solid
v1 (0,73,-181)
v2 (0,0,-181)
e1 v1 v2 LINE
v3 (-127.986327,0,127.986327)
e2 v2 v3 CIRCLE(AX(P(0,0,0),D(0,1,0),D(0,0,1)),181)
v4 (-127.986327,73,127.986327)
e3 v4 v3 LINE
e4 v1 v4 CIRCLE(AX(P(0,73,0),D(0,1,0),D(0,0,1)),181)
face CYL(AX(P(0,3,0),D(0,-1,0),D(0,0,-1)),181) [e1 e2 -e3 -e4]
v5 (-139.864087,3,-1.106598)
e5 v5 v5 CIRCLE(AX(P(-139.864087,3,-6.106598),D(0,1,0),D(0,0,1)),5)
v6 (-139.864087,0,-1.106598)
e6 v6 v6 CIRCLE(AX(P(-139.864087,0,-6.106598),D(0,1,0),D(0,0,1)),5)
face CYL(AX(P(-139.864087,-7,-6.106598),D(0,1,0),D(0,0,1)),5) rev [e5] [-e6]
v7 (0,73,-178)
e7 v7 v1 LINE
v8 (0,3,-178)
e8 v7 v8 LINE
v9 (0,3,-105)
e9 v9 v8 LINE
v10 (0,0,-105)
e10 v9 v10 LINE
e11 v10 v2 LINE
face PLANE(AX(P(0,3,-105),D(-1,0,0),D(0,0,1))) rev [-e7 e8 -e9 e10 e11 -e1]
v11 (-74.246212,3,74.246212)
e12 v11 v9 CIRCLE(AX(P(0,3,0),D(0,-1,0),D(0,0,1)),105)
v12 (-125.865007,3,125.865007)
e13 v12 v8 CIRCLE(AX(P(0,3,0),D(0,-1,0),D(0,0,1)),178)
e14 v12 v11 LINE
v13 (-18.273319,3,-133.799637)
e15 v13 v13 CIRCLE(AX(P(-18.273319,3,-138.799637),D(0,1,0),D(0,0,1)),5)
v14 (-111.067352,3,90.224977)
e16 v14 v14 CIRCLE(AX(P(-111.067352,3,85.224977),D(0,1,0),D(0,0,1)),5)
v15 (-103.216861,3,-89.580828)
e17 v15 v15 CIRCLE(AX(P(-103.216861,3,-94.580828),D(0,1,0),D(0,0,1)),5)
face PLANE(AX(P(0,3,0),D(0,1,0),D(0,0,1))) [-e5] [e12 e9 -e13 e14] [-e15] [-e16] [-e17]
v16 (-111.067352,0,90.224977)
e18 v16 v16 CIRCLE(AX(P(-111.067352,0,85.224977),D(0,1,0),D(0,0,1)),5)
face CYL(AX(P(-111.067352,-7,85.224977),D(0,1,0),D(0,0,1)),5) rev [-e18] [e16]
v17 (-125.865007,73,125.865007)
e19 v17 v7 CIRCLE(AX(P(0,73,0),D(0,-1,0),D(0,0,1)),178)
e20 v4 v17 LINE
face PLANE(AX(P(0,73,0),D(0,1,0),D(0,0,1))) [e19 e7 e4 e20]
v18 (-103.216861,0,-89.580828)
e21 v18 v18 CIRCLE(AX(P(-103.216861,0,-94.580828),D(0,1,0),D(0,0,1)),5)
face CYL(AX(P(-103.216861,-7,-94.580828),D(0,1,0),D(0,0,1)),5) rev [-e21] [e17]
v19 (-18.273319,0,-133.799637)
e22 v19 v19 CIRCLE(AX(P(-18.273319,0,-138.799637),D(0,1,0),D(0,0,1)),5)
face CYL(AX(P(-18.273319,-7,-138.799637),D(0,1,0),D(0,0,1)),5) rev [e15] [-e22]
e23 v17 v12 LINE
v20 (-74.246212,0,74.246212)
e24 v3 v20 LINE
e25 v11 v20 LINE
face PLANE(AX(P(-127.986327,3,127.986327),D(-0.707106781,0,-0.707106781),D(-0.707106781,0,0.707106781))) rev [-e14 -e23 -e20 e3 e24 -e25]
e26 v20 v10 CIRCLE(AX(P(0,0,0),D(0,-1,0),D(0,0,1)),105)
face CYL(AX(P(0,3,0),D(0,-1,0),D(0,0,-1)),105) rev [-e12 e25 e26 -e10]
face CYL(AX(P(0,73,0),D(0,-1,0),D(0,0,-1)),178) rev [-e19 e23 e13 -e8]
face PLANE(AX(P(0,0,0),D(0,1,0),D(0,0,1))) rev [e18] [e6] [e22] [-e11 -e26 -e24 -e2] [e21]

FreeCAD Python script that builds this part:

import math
import FreeCAD as App
import Part
import Sketcher

V = App.Vector
Q = App.Units.Quantity

doc = App.newDocument("Part")
params = doc.addObject("Spreadsheet::Sheet", "Params")
for row, (alias, value) in enumerate([
    ("sketch1_radius", "181 mm"),
    ("sketch1_radius2", "105 mm"),
    ("pad1_length", "3 mm"),
    ("sketch2_radius", "181 mm"),
    ("sketch2_radius2", "178 mm"),
    ("pad2_length", "70 mm"),
    ("sketch3_diameter", "10 mm"),
    ("pocket1_length", "10 mm"),
], start=1):
    params.set(f"A{row}", alias)
    params.set(f"B{row}", "=" + value)
    params.setAlias(f"B{row}", alias)

body = doc.addObject("PartDesign::Body", "Body")

# Sketch on XZ plane
sketch1 = doc.addObject("Sketcher::SketchObject", "Sketch")
body.addObject(sketch1)
sketch1.AttachmentSupport = (doc.XZ_Plane, [""])
sketch1.MapMode = "FlatFace"
sketch1.addGeometry(Part.LineSegment(V(0, -105, 0), V(0, -181, 0)), False)
sketch1.addGeometry(Part.ArcOfCircle(Part.Circle(V(0, 0, 0), V(0, 0, 1), 181), math.radians(135), math.radians(270)), False)
sketch1.addGeometry(Part.LineSegment(V(-128, 128, 0), V(-74, 74, 0)), False)
sketch1.addGeometry(Part.ArcOfCircle(Part.Circle(V(0, 0, 0), V(0, 0, 1), 105), math.radians(135), math.radians(270)), False)
sketch1.addConstraint(Sketcher.Constraint("Coincident", 0, 2, 1, 2))
sketch1.addConstraint(Sketcher.Constraint("Coincident", 1, 1, 2, 1))
sketch1.addConstraint(Sketcher.Constraint("Coincident", 2, 2, 3, 1))
sketch1.addConstraint(Sketcher.Constraint("Coincident", 3, 2, 0, 1))
sketch1.addConstraint(Sketcher.Constraint("Vertical", 0))
sketch1.addConstraint(Sketcher.Constraint("Coincident", 1, 3, -1, 1))
sketch1.addConstraint(Sketcher.Constraint("Coincident", 3, 3, -1, 1))
sketch1.addConstraint(Sketcher.Constraint("PointOnObject", 0, 2, -2))
sketch1.addConstraint(Sketcher.Constraint("Radius", 1, Q("181 mm")))
sketch1.addConstraint(Sketcher.Constraint("Radius", 3, Q("105 mm")))
sketch1.addConstraint(Sketcher.Constraint("Angle", 2, Q("-45 deg")))
sketch1.addConstraint(Sketcher.Constraint("DistanceX", 1, 1, -1, 1, Q("127.986327 mm")))
sketch1.setExpression("Constraints[8]", "Params.sketch1_radius")
sketch1.setExpression("Constraints[9]", "Params.sketch1_radius2")
pad1 = doc.addObject("PartDesign::Pad", "Pad")
body.addObject(pad1)
pad1.Profile = sketch1
pad1.setExpression("Length", "Params.pad1_length")
pad1.Reversed = True

# Sketch on XZ plane
sketch2 = doc.addObject("Sketcher::SketchObject", "Sketch001")
body.addObject(sketch2)
sketch2.AttachmentSupport = (doc.XZ_Plane, [""])
sketch2.MapMode = "FlatFace"
sketch2.AttachmentOffset = App.Placement(V(0, 0, -3), App.Rotation())
sketch2.addGeometry(Part.LineSegment(V(0, -178, 0), V(0, -181, 0)), False)
sketch2.addGeometry(Part.ArcOfCircle(Part.Circle(V(0, 0, 0), V(0, 0, 1), 181), math.radians(135), math.radians(270)), False)
sketch2.addGeometry(Part.LineSegment(V(-128, 128, 0), V(-125.9, 125.9, 0)), False)
sketch2.addGeometry(Part.ArcOfCircle(Part.Circle(V(0, 0, 0), V(0, 0, 1), 178), math.radians(135), math.radians(270)), False)
sketch2.addConstraint(Sketcher.Constraint("Coincident", 0, 2, 1, 2))
sketch2.addConstraint(Sketcher.Constraint("Coincident", 1, 1, 2, 1))
sketch2.addConstraint(Sketcher.Constraint("Coincident", 2, 2, 3, 1))
sketch2.addConstraint(Sketcher.Constraint("Coincident", 3, 2, 0, 1))
sketch2.addConstraint(Sketcher.Constraint("Vertical", 0))
sketch2.addConstraint(Sketcher.Constraint("Coincident", 1, 3, -1, 1))
sketch2.addConstraint(Sketcher.Constraint("Coincident", 3, 3, -1, 1))
sketch2.addConstraint(Sketcher.Constraint("PointOnObject", 0, 2, -2))
sketch2.addConstraint(Sketcher.Constraint("Radius", 1, Q("181 mm")))
sketch2.addConstraint(Sketcher.Constraint("Radius", 3, Q("178 mm")))
sketch2.addConstraint(Sketcher.Constraint("Angle", 2, Q("-45 deg")))
sketch2.addConstraint(Sketcher.Constraint("DistanceX", 1, 1, -1, 1, Q("127.986327 mm")))
sketch2.setExpression("Constraints[8]", "Params.sketch2_radius")
sketch2.setExpression("Constraints[9]", "Params.sketch2_radius2")
pad2 = doc.addObject("PartDesign::Pad", "Pad001")
body.addObject(pad2)
pad2.Profile = sketch2
pad2.setExpression("Length", "Params.pad2_length")
pad2.Reversed = True

# Sketch on XZ plane
sketch3 = doc.addObject("Sketcher::SketchObject", "Sketch002")
body.addObject(sketch3)
sketch3.AttachmentSupport = (doc.XZ_Plane, [""])
sketch3.MapMode = "FlatFace"
sketch3.AttachmentOffset = App.Placement(V(0, 0, -3), App.Rotation())
sketch3.addGeometry(Part.Circle(V(-140, -6, 0), V(0, 0, 1), 5), False)
sketch3.addGeometry(Part.Circle(V(-111, 85, 0), V(0, 0, 1), 5), False)
sketch3.addGeometry(Part.Circle(V(-103, -95, 0), V(0, 0, 1), 5), False)
sketch3.addGeometry(Part.Circle(V(-18, -139, 0), V(0, 0, 1), 5), False)
sketch3.addConstraint(Sketcher.Constraint("Equal", 0, 1))
sketch3.addConstraint(Sketcher.Constraint("Equal", 1, 2))
sketch3.addConstraint(Sketcher.Constraint("Equal", 2, 3))
sketch3.addConstraint(Sketcher.Constraint("Diameter", 0, Q("10 mm")))
sketch3.addConstraint(Sketcher.Constraint("DistanceX", 2, 3, -1, 1, Q("103.216861 mm")))
sketch3.addConstraint(Sketcher.Constraint("DistanceX", 3, 3, -1, 1, Q("18.273319 mm")))
sketch3.addConstraint(Sketcher.Constraint("DistanceY", 2, 3, 0, 3, Q("88.47423 mm")))
sketch3.addConstraint(Sketcher.Constraint("DistanceX", 1, 3, 2, 3, Q("7.850491 mm")))
sketch3.addConstraint(Sketcher.Constraint("DistanceY", 3, 3, 2, 3, Q("44.218809 mm")))
sketch3.addConstraint(Sketcher.Constraint("DistanceX", 0, 3, 3, 3, Q("121.590768 mm")))
sketch3.addConstraint(Sketcher.Constraint("DistanceY", 0, 3, -1, 1, Q("6.106598 mm")))
sketch3.addConstraint(Sketcher.Constraint("DistanceY", -1, 1, 1, 3, Q("85.224977 mm")))
sketch3.setExpression("Constraints[3]", "Params.sketch3_diameter")
pocket1 = doc.addObject("PartDesign::Pocket", "Pocket")
body.addObject(pocket1)
pocket1.Profile = sketch3
pocket1.setExpression("Length", "Params.pocket1_length")
pocket1.Reversed = True

doc.recompute()
